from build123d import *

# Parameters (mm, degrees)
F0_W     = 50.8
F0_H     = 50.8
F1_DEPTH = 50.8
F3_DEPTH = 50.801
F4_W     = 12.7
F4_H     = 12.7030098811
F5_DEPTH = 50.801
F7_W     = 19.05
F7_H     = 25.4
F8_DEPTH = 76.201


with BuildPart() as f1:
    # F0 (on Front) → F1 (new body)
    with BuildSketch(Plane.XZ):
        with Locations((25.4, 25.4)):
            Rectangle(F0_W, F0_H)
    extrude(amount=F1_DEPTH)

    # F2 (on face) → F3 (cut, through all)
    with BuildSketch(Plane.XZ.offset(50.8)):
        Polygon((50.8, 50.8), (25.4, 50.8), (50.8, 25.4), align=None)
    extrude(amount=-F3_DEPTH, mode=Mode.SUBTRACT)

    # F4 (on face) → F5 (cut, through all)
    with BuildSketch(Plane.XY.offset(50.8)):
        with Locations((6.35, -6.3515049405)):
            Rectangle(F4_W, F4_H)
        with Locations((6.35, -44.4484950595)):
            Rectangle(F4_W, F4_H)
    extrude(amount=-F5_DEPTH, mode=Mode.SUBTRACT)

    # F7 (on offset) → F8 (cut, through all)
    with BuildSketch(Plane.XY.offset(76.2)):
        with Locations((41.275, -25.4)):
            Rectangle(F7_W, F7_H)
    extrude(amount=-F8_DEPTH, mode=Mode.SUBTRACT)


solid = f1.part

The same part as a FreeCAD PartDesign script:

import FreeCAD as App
import Part
import Sketcher
from FreeCAD import Vector
Q = App.Units.Quantity


def add_polygon(sketch, points):
    """Adds a closed chain of lines whose ends are joined by coincident constraints."""
    first, n = sketch.GeometryCount, len(points)
    for a, b in zip(points, points[1:] + points[:1]):
        sketch.addGeometry(Part.LineSegment(App.Vector(*a, 0), App.Vector(*b, 0)), False)
    for i in range(n):
        sketch.addConstraint(Sketcher.Constraint("Coincident", first + i, 2, first + (i + 1) % n, 1))

doc = App.newDocument("Part")
body = doc.addObject("PartDesign::Body", "Body")

# Sketch on XZ plane
sketch1 = body.newObject("Sketcher::SketchObject", "Sketch")
sketch1.AttachmentSupport = (doc.getObject("XZ_Plane"), [""])
sketch1.MapMode = "FlatFace"
add_polygon(sketch1, [(0, 51), (0, 0), (51, 0), (51, 51)])  # lines 0-3
sketch1.addConstraint([
    Sketcher.Constraint("Vertical", 0),
    Sketcher.Constraint("Horizontal", 1),
    Sketcher.Constraint("Vertical", 2),
    Sketcher.Constraint("Horizontal", 3),
    Sketcher.Constraint("Coincident", 0, 2, -1, 1),
    Sketcher.Constraint("Equal", 3, 0),
    Sketcher.Constraint("DistanceX", 1, 1, 1, 2, Q("2 in")),
])
pad1 = body.newObject("PartDesign::Pad", "Pad")
pad1.Profile = sketch1
pad1.Length = Q("2 in")

# Sketch on XZ plane
sketch2 = body.newObject("Sketcher::SketchObject", "Sketch001")
sketch2.AttachmentSupport = (doc.getObject("XZ_Plane"), [""])
sketch2.MapMode = "FlatFace"
sketch2.AttachmentOffset = App.Placement(Vector(0, 0, 2 * 25.4), App.Rotation())
add_polygon(sketch2, [(51, 51), (25, 51), (51, 25)])  # lines 0-2
sketch2.addConstraint([
    Sketcher.Constraint("Horizontal", 0),
    Sketcher.Constraint("Vertical", 2),
    Sketcher.Constraint("Equal", 0, 2),
    Sketcher.Constraint("DistanceX", 0, 2, 0, 1, Q("1 in")),
    Sketcher.Constraint("DistanceX", -1, 1, 0, 2, Q("1 in")),
    Sketcher.Constraint("DistanceY", -1, 1, 0, 2, Q("2 in")),
])
pocket1 = body.newObject("PartDesign::Pocket", "Pocket")
pocket1.Profile = sketch2
pocket1.Type = "ThroughAll"

# Sketch on XY plane
sketch3 = body.newObject("Sketcher::SketchObject", "Sketch002")
sketch3.AttachmentSupport = (doc.getObject("XY_Plane"), [""])
sketch3.MapMode = "FlatFace"
sketch3.AttachmentOffset = App.Placement(Vector(0, 0, 2 * 25.4), App.Rotation())
add_polygon(sketch3, [(0, 0), (0, -13), (13, -13), (13, 0)])  # lines 0-3
add_polygon(sketch3, [(0, -38), (0, -51), (13, -51), (13, -38)])  # lines 4-7
sketch3.addConstraint([
    Sketcher.Constraint("Vertical", 0),
    Sketcher.Constraint("Horizontal", 1),
    Sketcher.Constraint("Vertical", 2),
    Sketcher.Constraint("Horizontal", 3),
    Sketcher.Constraint("Vertical", 4),
    Sketcher.Constraint("Horizontal", 5),
    Sketcher.Constraint("Vertical", 6),
    Sketcher.Constraint("Horizontal", 7),
    Sketcher.Constraint("Coincident", 3, 2, -1, 1),
    Sketcher.Constraint("PointOnObject", 4, 2, -2),
    Sketcher.Constraint("Vertical", 2, 2, 5, 2),
    Sketcher.Constraint("Equal", 2, 4),
    Sketcher.Constraint("DistanceX", 1, 1, 1, 2, Q("0.5 in")),
    Sketcher.Constraint("DistanceY", 4, 2, -1, 1, Q("2 in")),
    Sketcher.Constraint("DistanceY", 0, 2, 0, 1, 12.70301),
])
pocket2 = body.newObject("PartDesign::Pocket", "Pocket001")
pocket2.Profile = sketch3
pocket2.Type = "ThroughAll"

# Sketch on XY plane
sketch4 = body.newObject("Sketcher::SketchObject", "Sketch003")
sketch4.AttachmentSupport = (doc.getObject("XY_Plane"), [""])
sketch4.MapMode = "FlatFace"
sketch4.AttachmentOffset = App.Placement(Vector(0, 0, 3 * 25.4), App.Rotation())
add_polygon(sketch4, [(32, -13), (32, -38), (51, -38), (51, -13)])  # lines 0-3
sketch4.addConstraint([
    Sketcher.Constraint("Vertical", 0),
    Sketcher.Constraint("Horizontal", 1),
    Sketcher.Constraint("Vertical", 2),
    Sketcher.Constraint("Horizontal", 3),
    Sketcher.Constraint("DistanceY", 0, 2, 0, 1, Q("1 in")),
    Sketcher.Constraint("DistanceX", -1, 1, 1, 2, Q("2 in")),
    Sketcher.Constraint("DistanceX", 1, 1, 1, 2, Q("0.75 in")),
    Sketcher.Constraint("DistanceY", 0, 2, -1, 1, Q("1.5 in")),
])
pocket3 = body.newObject("PartDesign::Pocket", "Pocket002")
pocket3.Profile = sketch4
pocket3.Type = "ThroughAll"

doc.recompute()
